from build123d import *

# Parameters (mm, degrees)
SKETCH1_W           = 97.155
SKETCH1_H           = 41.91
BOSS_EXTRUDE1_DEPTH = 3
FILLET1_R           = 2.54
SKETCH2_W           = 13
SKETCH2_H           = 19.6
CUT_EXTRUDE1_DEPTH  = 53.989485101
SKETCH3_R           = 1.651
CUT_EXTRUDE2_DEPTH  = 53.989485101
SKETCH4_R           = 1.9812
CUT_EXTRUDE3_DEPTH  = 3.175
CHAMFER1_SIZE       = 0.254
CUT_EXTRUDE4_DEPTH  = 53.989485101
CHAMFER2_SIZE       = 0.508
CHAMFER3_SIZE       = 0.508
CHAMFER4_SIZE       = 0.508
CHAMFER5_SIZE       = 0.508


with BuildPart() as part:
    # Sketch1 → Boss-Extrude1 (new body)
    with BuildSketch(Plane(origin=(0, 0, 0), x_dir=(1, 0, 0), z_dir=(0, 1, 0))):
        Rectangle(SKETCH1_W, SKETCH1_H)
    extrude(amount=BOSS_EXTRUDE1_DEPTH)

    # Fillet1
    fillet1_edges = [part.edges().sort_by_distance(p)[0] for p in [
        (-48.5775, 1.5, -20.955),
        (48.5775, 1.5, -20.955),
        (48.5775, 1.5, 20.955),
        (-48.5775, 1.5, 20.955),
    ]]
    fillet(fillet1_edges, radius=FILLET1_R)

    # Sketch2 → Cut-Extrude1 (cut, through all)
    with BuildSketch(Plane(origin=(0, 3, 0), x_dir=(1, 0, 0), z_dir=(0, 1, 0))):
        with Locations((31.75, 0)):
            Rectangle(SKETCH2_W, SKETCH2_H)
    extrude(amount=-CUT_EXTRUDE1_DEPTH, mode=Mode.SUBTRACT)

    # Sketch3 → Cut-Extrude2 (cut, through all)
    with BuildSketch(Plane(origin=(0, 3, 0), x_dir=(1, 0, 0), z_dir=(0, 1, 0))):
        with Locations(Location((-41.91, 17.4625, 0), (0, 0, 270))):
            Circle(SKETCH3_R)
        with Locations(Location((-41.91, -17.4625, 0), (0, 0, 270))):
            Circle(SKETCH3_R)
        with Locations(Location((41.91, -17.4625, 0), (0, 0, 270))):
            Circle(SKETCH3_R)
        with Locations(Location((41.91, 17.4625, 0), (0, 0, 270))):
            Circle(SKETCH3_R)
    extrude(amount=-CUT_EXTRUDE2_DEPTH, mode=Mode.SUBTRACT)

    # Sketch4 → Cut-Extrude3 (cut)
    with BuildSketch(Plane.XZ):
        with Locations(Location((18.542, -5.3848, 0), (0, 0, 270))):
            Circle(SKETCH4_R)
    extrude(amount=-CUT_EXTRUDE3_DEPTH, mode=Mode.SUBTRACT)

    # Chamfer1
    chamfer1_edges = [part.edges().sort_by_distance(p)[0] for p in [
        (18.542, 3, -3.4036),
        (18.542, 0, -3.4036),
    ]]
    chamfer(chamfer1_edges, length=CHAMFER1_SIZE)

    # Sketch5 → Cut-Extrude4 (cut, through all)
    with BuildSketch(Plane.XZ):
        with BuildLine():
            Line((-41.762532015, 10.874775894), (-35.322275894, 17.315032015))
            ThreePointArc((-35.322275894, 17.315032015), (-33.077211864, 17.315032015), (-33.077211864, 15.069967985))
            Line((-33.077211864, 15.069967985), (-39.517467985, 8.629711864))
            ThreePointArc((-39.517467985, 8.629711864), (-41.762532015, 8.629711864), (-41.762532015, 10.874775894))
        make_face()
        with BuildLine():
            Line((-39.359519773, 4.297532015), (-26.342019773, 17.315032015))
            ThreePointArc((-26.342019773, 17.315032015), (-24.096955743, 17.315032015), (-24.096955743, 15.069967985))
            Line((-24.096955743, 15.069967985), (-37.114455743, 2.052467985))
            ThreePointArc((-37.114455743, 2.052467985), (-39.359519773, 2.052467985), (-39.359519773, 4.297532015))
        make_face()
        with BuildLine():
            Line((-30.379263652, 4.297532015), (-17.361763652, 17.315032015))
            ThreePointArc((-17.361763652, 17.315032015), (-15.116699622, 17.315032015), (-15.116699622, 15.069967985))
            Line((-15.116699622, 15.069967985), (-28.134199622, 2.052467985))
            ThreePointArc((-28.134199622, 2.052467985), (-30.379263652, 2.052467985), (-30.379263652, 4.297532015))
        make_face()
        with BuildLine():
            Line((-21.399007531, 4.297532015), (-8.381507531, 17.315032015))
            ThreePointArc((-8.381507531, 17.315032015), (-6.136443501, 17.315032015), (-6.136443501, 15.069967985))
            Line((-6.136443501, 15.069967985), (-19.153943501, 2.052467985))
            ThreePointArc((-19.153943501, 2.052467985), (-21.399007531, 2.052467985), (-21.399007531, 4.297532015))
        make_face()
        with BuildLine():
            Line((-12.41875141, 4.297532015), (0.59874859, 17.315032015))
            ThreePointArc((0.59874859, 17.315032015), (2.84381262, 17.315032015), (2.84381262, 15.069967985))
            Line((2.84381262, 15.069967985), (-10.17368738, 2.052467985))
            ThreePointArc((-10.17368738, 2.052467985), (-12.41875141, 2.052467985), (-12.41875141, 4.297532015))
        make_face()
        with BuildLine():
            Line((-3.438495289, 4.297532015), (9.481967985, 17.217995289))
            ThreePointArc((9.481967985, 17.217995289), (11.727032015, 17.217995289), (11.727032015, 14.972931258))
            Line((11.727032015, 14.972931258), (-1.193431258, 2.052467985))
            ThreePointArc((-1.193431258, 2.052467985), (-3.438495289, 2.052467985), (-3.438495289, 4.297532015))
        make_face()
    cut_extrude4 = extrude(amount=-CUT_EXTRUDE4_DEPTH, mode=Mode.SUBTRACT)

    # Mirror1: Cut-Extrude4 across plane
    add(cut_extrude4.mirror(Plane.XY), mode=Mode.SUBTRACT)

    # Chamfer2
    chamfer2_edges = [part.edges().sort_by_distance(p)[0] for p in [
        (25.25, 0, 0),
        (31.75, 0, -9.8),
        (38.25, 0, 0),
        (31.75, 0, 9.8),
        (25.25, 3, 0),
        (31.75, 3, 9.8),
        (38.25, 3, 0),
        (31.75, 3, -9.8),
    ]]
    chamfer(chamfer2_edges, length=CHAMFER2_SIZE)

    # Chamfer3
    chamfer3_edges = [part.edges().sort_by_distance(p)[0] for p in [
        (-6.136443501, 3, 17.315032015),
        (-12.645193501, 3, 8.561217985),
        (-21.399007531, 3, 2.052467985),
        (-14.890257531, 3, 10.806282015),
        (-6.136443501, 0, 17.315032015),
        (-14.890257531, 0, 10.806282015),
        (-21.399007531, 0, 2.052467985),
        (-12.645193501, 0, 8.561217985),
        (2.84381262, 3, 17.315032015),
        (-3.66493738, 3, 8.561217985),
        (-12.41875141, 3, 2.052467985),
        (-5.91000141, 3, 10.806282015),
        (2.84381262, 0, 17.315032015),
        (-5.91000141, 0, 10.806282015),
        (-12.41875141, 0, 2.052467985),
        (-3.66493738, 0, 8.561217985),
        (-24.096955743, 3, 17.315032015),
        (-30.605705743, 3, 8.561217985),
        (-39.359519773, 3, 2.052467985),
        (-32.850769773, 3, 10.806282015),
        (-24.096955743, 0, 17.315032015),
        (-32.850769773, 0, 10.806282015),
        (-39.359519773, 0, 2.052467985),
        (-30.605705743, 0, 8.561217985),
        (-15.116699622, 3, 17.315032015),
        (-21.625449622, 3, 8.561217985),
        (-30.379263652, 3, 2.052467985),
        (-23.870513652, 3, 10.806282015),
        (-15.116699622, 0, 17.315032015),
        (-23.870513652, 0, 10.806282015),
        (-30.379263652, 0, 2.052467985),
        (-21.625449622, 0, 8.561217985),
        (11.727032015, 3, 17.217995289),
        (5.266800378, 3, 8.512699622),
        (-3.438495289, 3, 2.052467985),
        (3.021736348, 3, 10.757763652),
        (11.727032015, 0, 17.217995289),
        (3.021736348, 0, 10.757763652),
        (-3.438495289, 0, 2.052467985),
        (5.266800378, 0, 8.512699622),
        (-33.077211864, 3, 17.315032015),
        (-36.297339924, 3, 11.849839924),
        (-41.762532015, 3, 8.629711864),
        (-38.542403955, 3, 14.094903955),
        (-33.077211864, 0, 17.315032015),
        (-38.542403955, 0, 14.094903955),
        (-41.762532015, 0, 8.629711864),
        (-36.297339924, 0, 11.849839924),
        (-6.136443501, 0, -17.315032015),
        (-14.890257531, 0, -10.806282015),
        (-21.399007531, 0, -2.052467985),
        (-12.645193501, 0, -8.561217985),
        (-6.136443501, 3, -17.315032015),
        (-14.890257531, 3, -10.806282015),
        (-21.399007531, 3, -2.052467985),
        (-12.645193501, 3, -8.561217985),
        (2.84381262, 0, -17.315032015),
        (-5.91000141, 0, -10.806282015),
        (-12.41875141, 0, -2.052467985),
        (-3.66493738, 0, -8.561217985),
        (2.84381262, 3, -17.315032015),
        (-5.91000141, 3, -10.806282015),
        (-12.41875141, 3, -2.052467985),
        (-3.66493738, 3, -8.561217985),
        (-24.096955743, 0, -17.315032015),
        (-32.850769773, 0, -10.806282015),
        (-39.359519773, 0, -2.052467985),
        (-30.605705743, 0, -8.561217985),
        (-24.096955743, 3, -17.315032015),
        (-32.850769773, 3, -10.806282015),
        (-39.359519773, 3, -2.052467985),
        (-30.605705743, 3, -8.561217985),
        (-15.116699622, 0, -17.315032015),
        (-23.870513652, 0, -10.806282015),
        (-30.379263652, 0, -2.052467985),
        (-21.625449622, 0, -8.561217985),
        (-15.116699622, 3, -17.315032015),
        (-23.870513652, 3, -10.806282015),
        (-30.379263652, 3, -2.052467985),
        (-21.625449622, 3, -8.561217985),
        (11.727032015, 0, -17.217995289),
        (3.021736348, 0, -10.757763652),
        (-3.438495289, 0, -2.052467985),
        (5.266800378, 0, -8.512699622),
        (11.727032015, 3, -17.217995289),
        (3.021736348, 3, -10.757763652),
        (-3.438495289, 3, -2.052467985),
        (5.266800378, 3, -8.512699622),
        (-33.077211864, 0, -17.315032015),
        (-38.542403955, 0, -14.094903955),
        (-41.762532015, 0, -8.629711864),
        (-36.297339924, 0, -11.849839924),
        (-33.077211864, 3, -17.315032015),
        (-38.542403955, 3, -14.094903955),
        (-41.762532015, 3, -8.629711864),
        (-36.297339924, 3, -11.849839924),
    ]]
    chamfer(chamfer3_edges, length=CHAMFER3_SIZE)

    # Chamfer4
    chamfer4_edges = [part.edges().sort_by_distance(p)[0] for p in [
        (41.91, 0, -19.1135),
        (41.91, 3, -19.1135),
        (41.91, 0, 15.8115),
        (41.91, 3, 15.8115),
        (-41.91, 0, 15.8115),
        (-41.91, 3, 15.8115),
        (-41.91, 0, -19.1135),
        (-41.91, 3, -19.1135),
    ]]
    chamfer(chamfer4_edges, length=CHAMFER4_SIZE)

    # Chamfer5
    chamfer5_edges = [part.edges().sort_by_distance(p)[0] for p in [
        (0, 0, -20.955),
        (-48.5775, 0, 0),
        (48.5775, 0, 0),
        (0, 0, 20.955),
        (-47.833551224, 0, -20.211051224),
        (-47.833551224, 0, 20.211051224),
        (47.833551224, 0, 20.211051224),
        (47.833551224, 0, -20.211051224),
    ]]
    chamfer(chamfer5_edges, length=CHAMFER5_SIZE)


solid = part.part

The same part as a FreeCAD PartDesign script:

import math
import FreeCAD as App
import Part
import Sketcher

V = App.Vector
Q = App.Units.Quantity


def edges_at(feature, points):
    """Names of the edges that pass closest to the given points."""
    edges = feature.Shape.Edges
    near = lambda p: min(range(len(edges)), key=lambda i: edges[i].distToShape(Part.Vertex(*p))[0])
    return sorted({f"Edge{near(p) + 1}" for p in points})

doc = App.newDocument("Part")
body = doc.addObject("PartDesign::Body", "Body")

# Sketch on XZ plane
sketch1 = body.newObject("Sketcher::SketchObject", "Sketch")
sketch1.AttachmentSupport = (doc.getObject("XZ_Plane"), [""])
sketch1.MapMode = "FlatFace"
sketch1.addGeometry(Part.LineSegment(V(-49, -21, 0), V(-49, 21, 0)), False)
sketch1.addGeometry(Part.LineSegment(V(-49, 21, 0), V(49, 21, 0)), False)
sketch1.addGeometry(Part.LineSegment(V(49, 21, 0), V(49, -21, 0)), False)
sketch1.addGeometry(Part.LineSegment(V(49, -21, 0), V(-49, -21, 0)), False)
sketch1.addConstraint(Sketcher.Constraint("Coincident", 0, 2, 1, 1))
sketch1.addConstraint(Sketcher.Constraint("Coincident", 1, 2, 2, 1))
sketch1.addConstraint(Sketcher.Constraint("Coincident", 2, 2, 3, 1))
sketch1.addConstraint(Sketcher.Constraint("Coincident", 3, 2, 0, 1))
sketch1.addConstraint(Sketcher.Constraint("Vertical", 0))
sketch1.addConstraint(Sketcher.Constraint("Horizontal", 1))
sketch1.addConstraint(Sketcher.Constraint("Vertical", 2))
sketch1.addConstraint(Sketcher.Constraint("Horizontal", 3))
sketch1.addConstraint(Sketcher.Constraint("Symmetric", 0, 2, 2, 2, -1, 1))
sketch1.addConstraint(Sketcher.Constraint("DistanceY", 0, 1, 0, 2, Q("1.65 in")))
sketch1.addConstraint(Sketcher.Constraint("DistanceX", 1, 1, 1, 2, Q("3.825 in")))
pad1 = body.newObject("PartDesign::Pad", "Pad")
pad1.Profile = sketch1
pad1.Length = 3
pad1.Reversed = True
doc.recompute()

fillet = body.newObject("PartDesign::Fillet", "Fillet")
fillet.Base = (pad1, edges_at(pad1, [
    (-48.578, 1.5, -20.955),
    (48.578, 1.5, -20.955),
    (48.578, 1.5, 20.955),
    (-48.578, 1.5, 20.955),
]))
fillet.Radius = Q("0.1 in")

# Sketch on XZ plane
sketch2 = body.newObject("Sketcher::SketchObject", "Sketch001")
sketch2.AttachmentSupport = (doc.getObject("XZ_Plane"), [""])
sketch2.MapMode = "FlatFace"
sketch2.AttachmentOffset = App.Placement(V(0, 0, -3), App.Rotation())
sketch2.addGeometry(Part.LineSegment(V(25, -10, 0), V(25, 10, 0)), False)
sketch2.addGeometry(Part.LineSegment(V(25, 10, 0), V(38, 10, 0)), False)
sketch2.addGeometry(Part.LineSegment(V(38, 10, 0), V(38, -10, 0)), False)
sketch2.addGeometry(Part.LineSegment(V(38, -10, 0), V(25, -10, 0)), False)
sketch2.addConstraint(Sketcher.Constraint("Coincident", 0, 2, 1, 1))
sketch2.addConstraint(Sketcher.Constraint("Coincident", 1, 2, 2, 1))
sketch2.addConstraint(Sketcher.Constraint("Coincident", 2, 2, 3, 1))
sketch2.addConstraint(Sketcher.Constraint("Coincident", 3, 2, 0, 1))
sketch2.addConstraint(Sketcher.Constraint("Vertical", 0))
sketch2.addConstraint(Sketcher.Constraint("Horizontal", 1))
sketch2.addConstraint(Sketcher.Constraint("Vertical", 2))
sketch2.addConstraint(Sketcher.Constraint("Horizontal", 3))
sketch2.addConstraint(Sketcher.Constraint("DistanceX", 1, 1, 1, 2, Q("13 mm")))
sketch2.addConstraint(Sketcher.Constraint("DistanceY", 0, 1, 0, 2, Q("19.6 mm")))
sketch2.addConstraint(Sketcher.Constraint("DistanceX", -1, 1, 0, 2, Q("25.25 mm")))
sketch2.addConstraint(Sketcher.Constraint("DistanceY", -1, 1, 0, 2, Q("9.8 mm")))
pocket1 = body.newObject("PartDesign::Pocket", "Pocket")
pocket1.Profile = sketch2
pocket1.Type = "ThroughAll"
pocket1.Reversed = True

# Sketch on XZ plane
sketch3 = body.newObject("Sketcher::SketchObject", "Sketch002")
sketch3.AttachmentSupport = (doc.getObject("XZ_Plane"), [""])
sketch3.MapMode = "FlatFace"
sketch3.AttachmentOffset = App.Placement(V(0, 0, -3), App.Rotation())
sketch3.addGeometry(Part.Circle(V(-41.9, -17.5, 0), V(0, 0, 1), 1.7), False)
sketch3.addGeometry(Part.Circle(V(-41.9, 17.5, 0), V(0, 0, 1), 1.7), False)
sketch3.addGeometry(Part.Circle(V(41.9, 17.5, 0), V(0, 0, 1), 1.7), False)
sketch3.addGeometry(Part.Circle(V(41.9, -17.5, 0), V(0, 0, 1), 1.7), False)
sketch3.addConstraint(Sketcher.Constraint("Equal", 0, 1))
sketch3.addConstraint(Sketcher.Constraint("Equal", 1, 2))
sketch3.addConstraint(Sketcher.Constraint("Equal", 2, 3))
sketch3.addConstraint(Sketcher.Constraint("Symmetric", 0, 3, 2, 3, -1, 1))
sketch3.addConstraint(Sketcher.Constraint("Symmetric", 1, 3, 3, 3, -1, 1))
sketch3.addConstraint(Sketcher.Constraint("Symmetric", 1, 3, 2, 3, -2))
sketch3.addConstraint(Sketcher.Constraint("Diameter", 0, Q("0.13 in")))
sketch3.addConstraint(Sketcher.Constraint("DistanceX", 1, 3, 2, 3, Q("3.3 in")))
sketch3.addConstraint(Sketcher.Constraint("DistanceY", 0, 3, -1, 1, Q("0.6875 in")))
pocket2 = body.newObject("PartDesign::Pocket", "Pocket001")
pocket2.Profile = sketch3
pocket2.Type = "ThroughAll"
pocket2.Reversed = True

# Sketch on XZ plane
sketch4 = body.newObject("Sketcher::SketchObject", "Sketch003")
sketch4.AttachmentSupport = (doc.getObject("XZ_Plane"), [""])
sketch4.MapMode = "FlatFace"
sketch4.addGeometry(Part.Circle(V(18.5, -5.4, 0), V(0, 0, 1), 2), False)
sketch4.addConstraint(Sketcher.Constraint("Diameter", 0, Q("0.156 in")))
sketch4.addConstraint(Sketcher.Constraint("DistanceX", -1, 1, 0, 3, Q("0.73 in")))
sketch4.addConstraint(Sketcher.Constraint("DistanceY", 0, 3, -1, 1, Q("0.212 in")))
pocket3 = body.newObject("PartDesign::Pocket", "Pocket002")
pocket3.Profile = sketch4
pocket3.Length = Q("0.125 in")
doc.recompute()

chamfer = body.newObject("PartDesign::Chamfer", "Chamfer")
chamfer.Base = (pocket3, edges_at(pocket3, [(18.542, 3, -3.404), (18.542, 0, -3.404)]))
chamfer.Size = Q("0.01 in")

# Sketch on XZ plane
sketch5 = body.newObject("Sketcher::SketchObject", "Sketch004")
sketch5.AttachmentSupport = (doc.getObject("XZ_Plane"), [""])
sketch5.MapMode = "FlatFace"
sketch5.addGeometry(Part.LineSegment(V(-35.3, 17.3, 0), V(-41.8, 10.9, 0)), False)
sketch5.addGeometry(Part.ArcOfCircle(Part.Circle(V(-40.6, 9.8, 0), V(0, 0, 1), 1.6), math.radians(135), math.radians(315)), False)
sketch5.addGeometry(Part.LineSegment(V(-39.5, 8.6, 0), V(-33.1, 15.1, 0)), False)
sketch5.addGeometry(Part.ArcOfCircle(Part.Circle(V(-34.2, 16.2, 0), V(0, 0, 1), 1.6), math.radians(-45), math.radians(135)), False)
sketch5.addGeometry(Part.LineSegment(V(-26.3, 17.3, 0), V(-39.4, 4.3, 0)), False)
sketch5.addGeometry(Part.ArcOfCircle(Part.Circle(V(-38.2, 3.2, 0), V(0, 0, 1), 1.6), math.radians(135), math.radians(315)), False)
sketch5.addGeometry(Part.LineSegment(V(-37.1, 2.1, 0), V(-24.1, 15.1, 0)), False)
sketch5.addGeometry(Part.ArcOfCircle(Part.Circle(V(-25.2, 16.2, 0), V(0, 0, 1), 1.6), math.radians(-45), math.radians(135)), False)
sketch5.addGeometry(Part.LineSegment(V(-17.4, 17.3, 0), V(-30.4, 4.3, 0)), False)
sketch5.addGeometry(Part.ArcOfCircle(Part.Circle(V(-29.3, 3.2, 0), V(0, 0, 1), 1.6), math.radians(135), math.radians(315)), False)
sketch5.addGeometry(Part.LineSegment(V(-28.1, 2.1, 0), V(-15.1, 15.1, 0)), False)
sketch5.addGeometry(Part.ArcOfCircle(Part.Circle(V(-16.2, 16.2, 0), V(0, 0, 1), 1.6), math.radians(-45), math.radians(135)), False)
sketch5.addGeometry(Part.LineSegment(V(-8.4, 17.3, 0), V(-21.4, 4.3, 0)), False)
sketch5.addGeometry(Part.ArcOfCircle(Part.Circle(V(-20.3, 3.2, 0), V(0, 0, 1), 1.6), math.radians(135), math.radians(315)), False)
sketch5.addGeometry(Part.LineSegment(V(-19.2, 2.1, 0), V(-6.1, 15.1, 0)), False)
sketch5.addGeometry(Part.ArcOfCircle(Part.Circle(V(-7.3, 16.2, 0), V(0, 0, 1), 1.6), math.radians(-45), math.radians(135)), False)
sketch5.addGeometry(Part.LineSegment(V(0.6, 17.3, 0), V(-12.4, 4.3, 0)), False)
sketch5.addGeometry(Part.ArcOfCircle(Part.Circle(V(-11.3, 3.2, 0), V(0, 0, 1), 1.6), math.radians(135), math.radians(315)), False)
sketch5.addGeometry(Part.LineSegment(V(-10.2, 2.1, 0), V(2.8, 15.1, 0)), False)
sketch5.addGeometry(Part.ArcOfCircle(Part.Circle(V(1.7, 16.2, 0), V(0, 0, 1), 1.6), math.radians(-45), math.radians(135)), False)
sketch5.addGeometry(Part.LineSegment(V(9.5, 17.2, 0), V(-3.4, 4.3, 0)), False)
sketch5.addGeometry(Part.ArcOfCircle(Part.Circle(V(-2.3, 3.2, 0), V(0, 0, 1), 1.6), math.radians(135), math.radians(315)), False)
sketch5.addGeometry(Part.LineSegment(V(-1.2, 2.1, 0), V(11.7, 15, 0)), False)
sketch5.addGeometry(Part.ArcOfCircle(Part.Circle(V(10.6, 16.1, 0), V(0, 0, 1), 1.6), math.radians(-45), math.radians(135)), False)
sketch5.addConstraint(Sketcher.Constraint("Tangent", 0, 2, 1, 1))
sketch5.addConstraint(Sketcher.Constraint("Tangent", 1, 2, 2, 1))
sketch5.addConstraint(Sketcher.Constraint("Tangent", 2, 2, 3, 1))
sketch5.addConstraint(Sketcher.Constraint("Tangent", 3, 2, 0, 1))
sketch5.addConstraint(Sketcher.Constraint("Tangent", 4, 2, 5, 1))
sketch5.addConstraint(Sketcher.Constraint("Tangent", 5, 2, 6, 1))
sketch5.addConstraint(Sketcher.Constraint("Tangent", 6, 2, 7, 1))
sketch5.addConstraint(Sketcher.Constraint("Tangent", 7, 2, 4, 1))
sketch5.addConstraint(Sketcher.Constraint("Tangent", 8, 2, 9, 1))
sketch5.addConstraint(Sketcher.Constraint("Tangent", 9, 2, 10, 1))
sketch5.addConstraint(Sketcher.Constraint("Tangent", 10, 2, 11, 1))
sketch5.addConstraint(Sketcher.Constraint("Tangent", 11, 2, 8, 1))
sketch5.addConstraint(Sketcher.Constraint("Tangent", 12, 2, 13, 1))
sketch5.addConstraint(Sketcher.Constraint("Tangent", 13, 2, 14, 1))
sketch5.addConstraint(Sketcher.Constraint("Tangent", 14, 2, 15, 1))
sketch5.addConstraint(Sketcher.Constraint("Tangent", 15, 2, 12, 1))
sketch5.addConstraint(Sketcher.Constraint("Tangent", 16, 2, 17, 1))
sketch5.addConstraint(Sketcher.Constraint("Tangent", 17, 2, 18, 1))
sketch5.addConstraint(Sketcher.Constraint("Tangent", 18, 2, 19, 1))
sketch5.addConstraint(Sketcher.Constraint("Tangent", 19, 2, 16, 1))
sketch5.addConstraint(Sketcher.Constraint("Tangent", 20, 2, 21, 1))
sketch5.addConstraint(Sketcher.Constraint("Tangent", 21, 2, 22, 1))
sketch5.addConstraint(Sketcher.Constraint("Tangent", 22, 2, 23, 1))
sketch5.addConstraint(Sketcher.Constraint("Tangent", 23, 2, 20, 1))
sketch5.addConstraint(Sketcher.Constraint("Equal", 1, 3))
sketch5.addConstraint(Sketcher.Constraint("Equal", 3, 5))
sketch5.addConstraint(Sketcher.Constraint("Equal", 5, 7))
sketch5.addConstraint(Sketcher.Constraint("Equal", 7, 9))
sketch5.addConstraint(Sketcher.Constraint("Equal", 9, 11))
sketch5.addConstraint(Sketcher.Constraint("Equal", 11, 13))
sketch5.addConstraint(Sketcher.Constraint("Equal", 13, 15))
sketch5.addConstraint(Sketcher.Constraint("Equal", 15, 17))
sketch5.addConstraint(Sketcher.Constraint("Equal", 17, 19))
sketch5.addConstraint(Sketcher.Constraint("Equal", 19, 21))
sketch5.addConstraint(Sketcher.Constraint("Equal", 21, 23))
sketch5.addConstraint(Sketcher.Constraint("Parallel", 2, 4))
sketch5.addConstraint(Sketcher.Constraint("Parallel", 6, 8))
sketch5.addConstraint(Sketcher.Constraint("Parallel", 10, 12))
sketch5.addConstraint(Sketcher.Constraint("Parallel", 14, 16))
sketch5.addConstraint(Sketcher.Constraint("Parallel", 18, 20))
sketch5.addConstraint(Sketcher.Constraint("Horizontal", 3, 3, 7, 3))
sketch5.addConstraint(Sketcher.Constraint("Horizontal", 5, 3, 9, 3))
sketch5.addConstraint(Sketcher.Constraint("Horizontal", 7, 3, 11, 3))
sketch5.addConstraint(Sketcher.Constraint("Horizontal", 9, 3, 13, 3))
sketch5.addConstraint(Sketcher.Constraint("Horizontal", 11, 3, 15, 3))
sketch5.addConstraint(Sketcher.Constraint("Horizontal", 13, 3, 17, 3))
sketch5.addConstraint(Sketcher.Constraint("Horizontal", 15, 3, 19, 3))
sketch5.addConstraint(Sketcher.Constraint("Horizontal", 17, 3, 21, 3))
sketch5.addConstraint(Sketcher.Constraint("Angle", 0, Q("-135 deg")))
sketch5.addConstraint(Sketcher.Constraint("Radius", 1, Q("0.0625 in")))
sketch5.addConstraint(Sketcher.Constraint("DistanceX", 1, 3, -1, 1, Q("1.6 in")))
sketch5.addConstraint(Sketcher.Constraint("DistanceY", -1, 1, 5, 3, Q("0.125 in")))
sketch5.addConstraint(Sketcher.Constraint("DistanceY", -1, 1, 3, 3, Q("0.6375 in")))
sketch5.addConstraint(Sketcher.Constraint("DistanceX", -1, 1, 23, 3, Q("0.4175 in")))
sketch5.addConstraint(Sketcher.Constraint("DistanceX", 9, 2, -1, 1, Q("28.1342 mm")))
sketch5.addConstraint(Sketcher.Constraint("DistanceY", 22, 2, 19, 2, Q("2.342101 mm")))
sketch5.addConstraint(Sketcher.Constraint("DistanceX", 17, 3, -1, 1, Q("11.296219 mm")))
sketch5.addConstraint(Sketcher.Constraint("DistanceY", -1, 1, 1, 2, Q("8.629712 mm")))
sketch5.addConstraint(Sketcher.Constraint("DistanceX", 4, 2, -1, 1, Q("39.35952 mm")))
sketch5.addConstraint(Sketcher.Constraint("DistanceX", 3, 3, 13, 3, Q("13.923268 mm")))
pocket4 = body.newObject("PartDesign::Pocket", "Pocket003")
pocket4.Profile = sketch5
pocket4.Type = "ThroughAll"
doc.recompute()

mirrored = body.newObject("PartDesign::Mirrored", "Mirrored")
mirrored.Originals = [pocket4]
mirrored.MirrorPlane = (doc.getObject("XY_Plane"), [""])
body.Tip = mirrored
doc.recompute()

chamfer2 = body.newObject("PartDesign::Chamfer", "Chamfer001")
chamfer2.Base = (mirrored, edges_at(mirrored, [
    (25.25, 0, 0),
    (31.75, 0, -9.8),
    (38.25, 0, 0),
    (31.75, 0, 9.8),
    (25.25, 3, 0),
    (31.75, 3, 9.8),
    (38.25, 3, 0),
    (31.75, 3, -9.8),
]))
chamfer2.Size = Q("0.02 in")
doc.recompute()

chamfer3 = body.newObject("PartDesign::Chamfer", "Chamfer002")
chamfer3.Base = (chamfer2, edges_at(chamfer2, [
    (-6.136, 3, 17.315),
    (-12.645, 3, 8.561),
    (-21.399, 3, 2.052),
    (-14.89, 3, 10.806),
    (-6.136, 0, 17.315),
    (-14.89, 0, 10.806),
    (-21.399, 0, 2.052),
    (-12.645, 0, 8.561),
    (2.844, 3, 17.315),
    (-3.665, 3, 8.561),
    (-12.419, 3, 2.052),
    (-5.91, 3, 10.806),
    (2.844, 0, 17.315),
    (-5.91, 0, 10.806),
    (-12.419, 0, 2.052),
    (-3.665, 0, 8.561),
    (-24.097, 3, 17.315),
    (-30.606, 3, 8.561),
    (-39.36, 3, 2.052),
    (-32.851, 3, 10.806),
    (-24.097, 0, 17.315),
    (-32.851, 0, 10.806),
    (-39.36, 0, 2.052),
    (-30.606, 0, 8.561),
    (-15.117, 3, 17.315),
    (-21.625, 3, 8.561),
    (-30.379, 3, 2.052),
    (-23.871, 3, 10.806),
    (-15.117, 0, 17.315),
    (-23.871, 0, 10.806),
    (-30.379, 0, 2.052),
    (-21.625, 0, 8.561),
    (11.727, 3, 17.218),
    (5.267, 3, 8.513),
    (-3.438, 3, 2.052),
    (3.022, 3, 10.758),
    (11.727, 0, 17.218),
    (3.022, 0, 10.758),
    (-3.438, 0, 2.052),
    (5.267, 0, 8.513),
    (-33.077, 3, 17.315),
    (-36.297, 3, 11.85),
    (-41.763, 3, 8.63),
    (-38.542, 3, 14.095),
    (-33.077, 0, 17.315),
    (-38.542, 0, 14.095),
    (-41.763, 0, 8.63),
    (-36.297, 0, 11.85),
    (-6.136, 0, -17.315),
    (-14.89, 0, -10.806),
    (-21.399, 0, -2.052),
    (-12.645, 0, -8.561),
    (-6.136, 3, -17.315),
    (-14.89, 3, -10.806),
    (-21.399, 3, -2.052),
    (-12.645, 3, -8.561),
    (2.844, 0, -17.315),
    (-5.91, 0, -10.806),
    (-12.419, 0, -2.052),
    (-3.665, 0, -8.561),
    (2.844, 3, -17.315),
    (-5.91, 3, -10.806),
    (-12.419, 3, -2.052),
    (-3.665, 3, -8.561),
    (-24.097, 0, -17.315),
    (-32.851, 0, -10.806),
    (-39.36, 0, -2.052),
    (-30.606, 0, -8.561),
    (-24.097, 3, -17.315),
    (-32.851, 3, -10.806),
    (-39.36, 3, -2.052),
    (-30.606, 3, -8.561),
    (-15.117, 0, -17.315),
    (-23.871, 0, -10.806),
    (-30.379, 0, -2.052),
    (-21.625, 0, -8.561),
    (-15.117, 3, -17.315),
    (-23.871, 3, -10.806),
    (-30.379, 3, -2.052),
    (-21.625, 3, -8.561),
    (11.727, 0, -17.218),
    (3.022, 0, -10.758),
    (-3.438, 0, -2.052),
    (5.267, 0, -8.513),
    (11.727, 3, -17.218),
    (3.022, 3, -10.758),
    (-3.438, 3, -2.052),
    (5.267, 3, -8.513),
    (-33.077, 0, -17.315),
    (-38.542, 0, -14.095),
    (-41.763, 0, -8.63),
    (-36.297, 0, -11.85),
    (-33.077, 3, -17.315),
    (-38.542, 3, -14.095),
    (-41.763, 3, -8.63),
    (-36.297, 3, -11.85),
]))
chamfer3.Size = Q("0.02 in")
doc.recompute()

chamfer4 = body.newObject("PartDesign::Chamfer", "Chamfer003")
chamfer4.Base = (chamfer3, edges_at(chamfer3, [
    (41.91, 0, -19.113),
    (41.91, 3, -19.113),
    (41.91, 0, 15.812),
    (41.91, 3, 15.812),
    (-41.91, 0, 15.812),
    (-41.91, 3, 15.812),
    (-41.91, 0, -19.113),
    (-41.91, 3, -19.113),
]))
chamfer4.Size = Q("0.02 in")
doc.recompute()

chamfer5 = body.newObject("PartDesign::Chamfer", "Chamfer004")
chamfer5.Base = (chamfer4, edges_at(chamfer4, [
    (0, 0, -20.955),
    (-48.578, 0, 0),
    (48.578, 0, 0),
    (0, 0, 20.955),
    (-47.834, 0, -20.211),
    (-47.834, 0, 20.211),
    (47.834, 0, 20.211),
    (47.834, 0, -20.211),
]))
chamfer5.Size = Q("0.02 in")

doc.recompute()
